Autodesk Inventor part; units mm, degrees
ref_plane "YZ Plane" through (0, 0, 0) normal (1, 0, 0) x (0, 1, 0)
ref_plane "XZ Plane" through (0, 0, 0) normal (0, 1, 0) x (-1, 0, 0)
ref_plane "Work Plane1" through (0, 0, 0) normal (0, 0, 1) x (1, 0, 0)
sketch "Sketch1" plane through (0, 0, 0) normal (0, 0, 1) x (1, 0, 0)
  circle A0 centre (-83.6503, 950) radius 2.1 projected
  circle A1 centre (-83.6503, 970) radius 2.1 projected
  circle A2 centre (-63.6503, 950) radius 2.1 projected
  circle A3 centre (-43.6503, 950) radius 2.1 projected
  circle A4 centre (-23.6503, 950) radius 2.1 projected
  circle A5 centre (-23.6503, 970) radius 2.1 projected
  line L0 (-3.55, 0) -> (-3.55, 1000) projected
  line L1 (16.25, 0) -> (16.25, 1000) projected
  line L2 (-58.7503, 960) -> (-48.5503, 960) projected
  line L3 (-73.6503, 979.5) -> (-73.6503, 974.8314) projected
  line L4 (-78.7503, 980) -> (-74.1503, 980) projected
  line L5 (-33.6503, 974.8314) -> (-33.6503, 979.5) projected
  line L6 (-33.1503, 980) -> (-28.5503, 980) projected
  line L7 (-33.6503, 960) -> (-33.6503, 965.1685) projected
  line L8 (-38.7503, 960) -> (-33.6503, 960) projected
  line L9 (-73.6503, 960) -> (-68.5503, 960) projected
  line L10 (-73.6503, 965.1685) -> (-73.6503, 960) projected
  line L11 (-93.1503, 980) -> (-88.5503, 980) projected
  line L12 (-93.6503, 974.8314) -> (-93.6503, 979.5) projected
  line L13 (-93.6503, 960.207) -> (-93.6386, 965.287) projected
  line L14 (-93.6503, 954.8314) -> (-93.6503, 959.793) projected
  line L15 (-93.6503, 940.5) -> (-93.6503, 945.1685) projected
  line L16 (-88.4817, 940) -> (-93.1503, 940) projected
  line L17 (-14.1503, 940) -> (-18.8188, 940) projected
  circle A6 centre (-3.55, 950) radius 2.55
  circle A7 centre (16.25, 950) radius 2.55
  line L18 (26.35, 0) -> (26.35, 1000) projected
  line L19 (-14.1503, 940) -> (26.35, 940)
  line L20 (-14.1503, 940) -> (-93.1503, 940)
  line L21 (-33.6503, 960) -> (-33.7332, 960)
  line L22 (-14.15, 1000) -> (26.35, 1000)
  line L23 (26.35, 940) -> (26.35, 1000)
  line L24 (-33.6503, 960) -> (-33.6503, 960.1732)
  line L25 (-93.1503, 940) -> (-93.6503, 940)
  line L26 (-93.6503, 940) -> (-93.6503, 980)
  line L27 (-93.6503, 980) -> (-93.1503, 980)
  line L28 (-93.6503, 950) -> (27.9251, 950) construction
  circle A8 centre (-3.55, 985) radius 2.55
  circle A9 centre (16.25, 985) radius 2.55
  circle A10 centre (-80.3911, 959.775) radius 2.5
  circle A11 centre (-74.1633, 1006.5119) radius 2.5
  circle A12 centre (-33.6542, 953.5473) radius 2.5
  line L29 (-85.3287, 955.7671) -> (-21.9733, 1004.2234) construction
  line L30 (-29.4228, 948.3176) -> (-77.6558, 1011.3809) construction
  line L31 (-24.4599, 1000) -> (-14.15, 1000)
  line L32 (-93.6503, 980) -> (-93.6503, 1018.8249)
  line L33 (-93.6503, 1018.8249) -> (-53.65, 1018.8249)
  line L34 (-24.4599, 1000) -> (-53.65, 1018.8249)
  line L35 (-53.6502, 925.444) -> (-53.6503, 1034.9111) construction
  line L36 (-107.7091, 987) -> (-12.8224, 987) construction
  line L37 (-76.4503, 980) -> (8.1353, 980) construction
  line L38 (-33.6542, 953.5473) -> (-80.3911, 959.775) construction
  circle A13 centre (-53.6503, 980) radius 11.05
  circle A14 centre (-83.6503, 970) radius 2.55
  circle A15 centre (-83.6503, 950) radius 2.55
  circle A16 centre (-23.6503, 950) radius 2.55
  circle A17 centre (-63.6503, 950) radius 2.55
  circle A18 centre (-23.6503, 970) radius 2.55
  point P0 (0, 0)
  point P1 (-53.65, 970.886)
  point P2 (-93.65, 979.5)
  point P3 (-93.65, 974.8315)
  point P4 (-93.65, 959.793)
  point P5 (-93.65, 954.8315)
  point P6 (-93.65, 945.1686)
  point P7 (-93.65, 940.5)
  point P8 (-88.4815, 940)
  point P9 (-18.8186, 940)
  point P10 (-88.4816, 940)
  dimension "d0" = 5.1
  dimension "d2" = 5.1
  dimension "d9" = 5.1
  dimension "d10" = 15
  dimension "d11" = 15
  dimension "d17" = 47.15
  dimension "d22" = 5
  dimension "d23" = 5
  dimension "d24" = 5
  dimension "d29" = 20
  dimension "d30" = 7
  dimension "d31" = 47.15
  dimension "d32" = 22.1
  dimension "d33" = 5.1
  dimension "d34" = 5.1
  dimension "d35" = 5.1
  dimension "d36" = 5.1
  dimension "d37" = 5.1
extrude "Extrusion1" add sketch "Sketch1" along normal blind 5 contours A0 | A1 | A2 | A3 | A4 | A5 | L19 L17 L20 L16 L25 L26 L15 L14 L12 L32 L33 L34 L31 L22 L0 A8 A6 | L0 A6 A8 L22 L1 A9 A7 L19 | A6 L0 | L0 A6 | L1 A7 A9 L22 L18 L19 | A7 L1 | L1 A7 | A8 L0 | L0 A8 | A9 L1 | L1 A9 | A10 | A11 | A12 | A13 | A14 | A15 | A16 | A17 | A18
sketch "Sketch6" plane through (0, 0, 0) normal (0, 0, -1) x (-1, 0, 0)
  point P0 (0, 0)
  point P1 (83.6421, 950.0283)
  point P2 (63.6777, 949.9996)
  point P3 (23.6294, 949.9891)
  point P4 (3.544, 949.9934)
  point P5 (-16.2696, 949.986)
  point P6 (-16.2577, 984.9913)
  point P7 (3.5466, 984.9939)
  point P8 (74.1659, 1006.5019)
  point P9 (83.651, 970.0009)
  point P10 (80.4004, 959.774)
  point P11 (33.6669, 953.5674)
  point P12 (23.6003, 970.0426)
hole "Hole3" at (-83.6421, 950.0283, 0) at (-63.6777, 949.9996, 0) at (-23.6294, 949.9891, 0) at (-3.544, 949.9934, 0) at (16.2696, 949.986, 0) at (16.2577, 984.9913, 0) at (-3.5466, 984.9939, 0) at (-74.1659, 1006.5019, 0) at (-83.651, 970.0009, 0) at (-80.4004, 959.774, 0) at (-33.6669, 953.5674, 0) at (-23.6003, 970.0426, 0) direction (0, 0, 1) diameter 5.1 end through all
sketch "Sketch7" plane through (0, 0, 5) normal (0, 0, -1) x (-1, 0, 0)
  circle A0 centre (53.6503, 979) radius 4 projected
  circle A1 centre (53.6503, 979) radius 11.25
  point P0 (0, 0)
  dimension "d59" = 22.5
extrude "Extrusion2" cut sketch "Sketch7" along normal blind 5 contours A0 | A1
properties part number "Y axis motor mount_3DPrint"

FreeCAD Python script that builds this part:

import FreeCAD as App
import Part
import Sketcher

V = App.Vector
Q = App.Units.Quantity


def add_polygon(sketch, points):
    """Adds a closed chain of lines whose ends are joined by coincident constraints."""
    first, n = sketch.GeometryCount, len(points)
    for a, b in zip(points, points[1:] + points[:1]):
        sketch.addGeometry(Part.LineSegment(App.Vector(*a, 0), App.Vector(*b, 0)), False)
    for i in range(n):
        sketch.addConstraint(Sketcher.Constraint("Coincident", first + i, 2, first + (i + 1) % n, 1))

doc = App.newDocument("Part")
params = doc.addObject("Spreadsheet::Sheet", "Params")
for row, (alias, value) in enumerate([
    ("sketch1_height", "60 mm"),
    ("sketch1_width", "50.81 mm"),
    ("pad1_length", "5 mm"),
    ("sketch2_diameter", "5.1 mm"),
    ("hole_diameter", "5.1 mm"),
    ("sketch3_diameter", "22.5 mm"),
    ("pocket1_length", "5 mm"),
], start=1):
    params.set(f"A{row}", alias)
    params.set(f"B{row}", "=" + value)
    params.setAlias(f"B{row}", alias)

body = doc.addObject("PartDesign::Body", "Body")

# Sketch on XY plane
sketch1 = body.newObject("Sketcher::SketchObject", "Sketch")
sketch1.AttachmentSupport = (doc.getObject("XY_Plane"), [""])
sketch1.MapMode = "FlatFace"
add_polygon(sketch1, [(26, 940), (26, 1000), (-24, 1000), (-54, 1019), (-94, 1019), (-94, 940)])  # lines 0-5
sketch1.addConstraint(Sketcher.Constraint("Vertical", 0))
sketch1.addConstraint(Sketcher.Constraint("Horizontal", 1))
sketch1.addConstraint(Sketcher.Constraint("Horizontal", 3))
sketch1.addConstraint(Sketcher.Constraint("Vertical", 4))
sketch1.addConstraint(Sketcher.Constraint("Horizontal", 5))
sketch1.addConstraint(Sketcher.Constraint("DistanceY", 0, 1, 0, 2, Q("60 mm")))
sketch1.addConstraint(Sketcher.Constraint("DistanceY", -1, 1, 0, 2, Q("1000 mm")))
sketch1.addConstraint(Sketcher.Constraint("DistanceX", 2, 2, 0, 2, Q("80 mm")))
sketch1.addConstraint(Sketcher.Constraint("DistanceX", 1, 2, 1, 1, Q("50.81 mm")))
sketch1.addConstraint(Sketcher.Constraint("DistanceY", 4, 2, 4, 1, Q("78.825 mm")))
sketch1.addConstraint(Sketcher.Constraint("DistanceX", -1, 1, 0, 2, Q("26.35 mm")))
sketch1.addConstraint(Sketcher.Constraint("DistanceX", 3, 2, 3, 1, Q("40.0003 mm")))
sketch1.setExpression("Constraints[11]", "Params.sketch1_height")
sketch1.setExpression("Constraints[14]", "Params.sketch1_width")
pad1 = body.newObject("PartDesign::Pad", "Pad")
pad1.Profile = sketch1
pad1.setExpression("Length", "Params.pad1_length")

# Sketch on XY plane
sketch2 = body.newObject("Sketcher::SketchObject", "Sketch001")
sketch2.AttachmentSupport = (doc.getObject("XY_Plane"), [""])
sketch2.MapMode = "FlatFace"
sketch2.addGeometry(Part.Circle(V(-83.6, 950, 0), V(0, 0, 1), 2.5), False)
sketch2.addGeometry(Part.Circle(V(-63.7, 950, 0), V(0, 0, 1), 2.5), False)
sketch2.addGeometry(Part.Circle(V(-23.6, 950, 0), V(0, 0, 1), 2.5), False)
sketch2.addGeometry(Part.Circle(V(-3.5, 950, 0), V(0, 0, 1), 2.5), False)
sketch2.addGeometry(Part.Circle(V(16.3, 950, 0), V(0, 0, 1), 2.5), False)
sketch2.addGeometry(Part.Circle(V(16.3, 985, 0), V(0, 0, 1), 2.5), False)
sketch2.addGeometry(Part.Circle(V(-3.5, 985, 0), V(0, 0, 1), 2.5), False)
sketch2.addGeometry(Part.Circle(V(-74.2, 1006.5, 0), V(0, 0, 1), 2.5), False)
sketch2.addGeometry(Part.Circle(V(-83.7, 970, 0), V(0, 0, 1), 2.5), False)
sketch2.addGeometry(Part.Circle(V(-80.4, 959.8, 0), V(0, 0, 1), 2.5), False)
sketch2.addGeometry(Part.Circle(V(-33.7, 953.6, 0), V(0, 0, 1), 2.5), False)
sketch2.addGeometry(Part.Circle(V(-23.6, 970, 0), V(0, 0, 1), 2.5), False)
sketch2.addConstraint(Sketcher.Constraint("Equal", 0, 1))
sketch2.addConstraint(Sketcher.Constraint("Equal", 1, 2))
sketch2.addConstraint(Sketcher.Constraint("Equal", 2, 3))
sketch2.addConstraint(Sketcher.Constraint("Equal", 3, 4))
sketch2.addConstraint(Sketcher.Constraint("Equal", 4, 5))
sketch2.addConstraint(Sketcher.Constraint("Equal", 5, 6))
sketch2.addConstraint(Sketcher.Constraint("Equal", 6, 7))
sketch2.addConstraint(Sketcher.Constraint("Equal", 7, 8))
sketch2.addConstraint(Sketcher.Constraint("Equal", 8, 9))
sketch2.addConstraint(Sketcher.Constraint("Equal", 9, 10))
sketch2.addConstraint(Sketcher.Constraint("Equal", 10, 11))
sketch2.addConstraint(Sketcher.Constraint("Diameter", 0, Q("5.1 mm")))
sketch2.addConstraint(Sketcher.Constraint("DistanceX", 0, 3, -1, 1, Q("83.642 mm")))
sketch2.addConstraint(Sketcher.Constraint("DistanceY", -1, 1, 2, 3, Q("949.989 mm")))
sketch2.addConstraint(Sketcher.Constraint("DistanceX", 3, 3, -1, 1, Q("3.544 mm")))
sketch2.addConstraint(Sketcher.Constraint("DistanceY", -1, 1, 4, 3, Q("949.986 mm")))
sketch2.addConstraint(Sketcher.Constraint("DistanceY", -1, 1, 6, 3, Q("984.994 mm")))
sketch2.addConstraint(Sketcher.Constraint("DistanceX", 7, 3, -1, 1, Q("74.166 mm")))
sketch2.addConstraint(Sketcher.Constraint("DistanceY", -1, 1, 7, 3, Q("1006.502 mm")))
sketch2.addConstraint(Sketcher.Constraint("DistanceX", 8, 3, -1, 1, Q("83.651 mm")))
sketch2.addConstraint(Sketcher.Constraint("DistanceY", -1, 1, 8, 3, Q("970.001 mm")))
sketch2.addConstraint(Sketcher.Constraint("DistanceY", -1, 1, 9, 3, Q("959.774 mm")))
sketch2.addConstraint(Sketcher.Constraint("DistanceX", 10, 3, -1, 1, Q("33.667 mm")))
sketch2.addConstraint(Sketcher.Constraint("DistanceY", 3, 3, 0, 3, Q("0.035 mm")))
sketch2.addConstraint(Sketcher.Constraint("DistanceX", 2, 3, 4, 3, Q("39.899 mm")))
sketch2.addConstraint(Sketcher.Constraint("DistanceX", 5, 3, 4, 3, Q("0.012 mm")))
sketch2.addConstraint(Sketcher.Constraint("DistanceY", 3, 3, 5, 3, Q("34.998 mm")))
sketch2.addConstraint(Sketcher.Constraint("DistanceX", 1, 3, 6, 3, Q("60.131 mm")))
sketch2.addConstraint(Sketcher.Constraint("DistanceX", 9, 3, 2, 3, Q("56.771 mm")))
sketch2.addConstraint(Sketcher.Constraint("DistanceY", 3, 3, 10, 3, Q("3.574 mm")))
sketch2.addConstraint(Sketcher.Constraint("DistanceX", 2, 3, 11, 3, Q("0.029 mm")))
sketch2.addConstraint(Sketcher.Constraint("DistanceY", -1, 1, 0, 3, Q("950.0283 mm")))
sketch2.addConstraint(Sketcher.Constraint("DistanceX", 1, 3, -1, 1, Q("63.6777 mm")))
sketch2.addConstraint(Sketcher.Constraint("DistanceY", -1, 1, 1, 3, Q("949.9996 mm")))
sketch2.addConstraint(Sketcher.Constraint("DistanceX", 2, 3, -1, 1, Q("23.6294 mm")))
sketch2.addConstraint(Sketcher.Constraint("DistanceY", -1, 1, 11, 3, Q("970.0426 mm")))
sketch2.setExpression("Constraints[11]", "Params.sketch2_diameter")
doc.recompute()
hole = body.newObject("PartDesign::Hole", "Hole")
hole.Profile = sketch2
hole.ThreadType = "None"
hole.setExpression("Diameter", "Params.hole_diameter")
hole.DepthType = "ThroughAll"
hole.Reversed = True

# Sketch on XY plane
sketch3 = body.newObject("Sketcher::SketchObject", "Sketch002")
sketch3.AttachmentSupport = (doc.getObject("XY_Plane"), [""])
sketch3.MapMode = "FlatFace"
sketch3.AttachmentOffset = App.Placement(V(0, 0, 5), App.Rotation())
sketch3.addGeometry(Part.Circle(V(-54, 979, 0), V(0, 0, 1), 11), False)
sketch3.addConstraint(Sketcher.Constraint("Diameter", 0, Q("22.5 mm")))
sketch3.addConstraint(Sketcher.Constraint("DistanceY", -1, 1, 0, 3, Q("979 mm")))
sketch3.addConstraint(Sketcher.Constraint("DistanceX", 0, 3, -1, 1, Q("53.6503 mm")))
sketch3.setExpression("Constraints[0]", "Params.sketch3_diameter")
pocket1 = body.newObject("PartDesign::Pocket", "Pocket")
pocket1.Profile = sketch3
pocket1.setExpression("Length", "Params.pocket1_length")

doc.recompute()
